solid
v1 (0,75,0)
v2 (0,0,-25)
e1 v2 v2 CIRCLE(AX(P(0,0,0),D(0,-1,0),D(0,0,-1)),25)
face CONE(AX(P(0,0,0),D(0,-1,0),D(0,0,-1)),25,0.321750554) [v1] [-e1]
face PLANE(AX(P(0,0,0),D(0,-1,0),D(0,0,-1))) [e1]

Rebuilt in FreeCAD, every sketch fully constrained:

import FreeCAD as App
import Part
import Sketcher

V = App.Vector
Q = App.Units.Quantity

doc = App.newDocument("Part")
body = doc.addObject("PartDesign::Body", "Body")

sketch1 = body.newObject("Sketcher::SketchObject", "Sketch")
sketch1.AttachmentSupport = (doc.getObject("XY_Plane"), [""])
sketch1.MapMode = "FlatFace"
sketch1.addGeometry(Part.LineSegment(V(0, 0, 0), V(25, 0, 0)), False)
sketch1.addGeometry(Part.LineSegment(V(25, 0, 0), V(0, 75, 0)), False)
sketch1.addGeometry(Part.LineSegment(V(0, 75, 0), V(0, 0, 0)), False)
sketch1.addConstraint(Sketcher.Constraint("Coincident", 0, 2, 1, 1))
sketch1.addConstraint(Sketcher.Constraint("Coincident", 1, 2, 2, 1))
sketch1.addConstraint(Sketcher.Constraint("Coincident", 2, 2, 0, 1))
sketch1.addConstraint(Sketcher.Constraint("Horizontal", 0))
sketch1.addConstraint(Sketcher.Constraint("Vertical", 2))
sketch1.addConstraint(Sketcher.Constraint("Coincident", 2, 2, -1, 1))
sketch1.addConstraint(Sketcher.Constraint("DistanceX", 0, 1, 0, 2, Q("25 mm")))
sketch1.addConstraint(Sketcher.Constraint("DistanceY", 2, 2, 2, 1, Q("75 mm")))
revolution = body.newObject("PartDesign::Revolution", "Revolution")
revolution.Profile = sketch1
revolution.ReferenceAxis = (sketch1, ["V_Axis"])
revolution.Angle = 360

doc.recompute()
